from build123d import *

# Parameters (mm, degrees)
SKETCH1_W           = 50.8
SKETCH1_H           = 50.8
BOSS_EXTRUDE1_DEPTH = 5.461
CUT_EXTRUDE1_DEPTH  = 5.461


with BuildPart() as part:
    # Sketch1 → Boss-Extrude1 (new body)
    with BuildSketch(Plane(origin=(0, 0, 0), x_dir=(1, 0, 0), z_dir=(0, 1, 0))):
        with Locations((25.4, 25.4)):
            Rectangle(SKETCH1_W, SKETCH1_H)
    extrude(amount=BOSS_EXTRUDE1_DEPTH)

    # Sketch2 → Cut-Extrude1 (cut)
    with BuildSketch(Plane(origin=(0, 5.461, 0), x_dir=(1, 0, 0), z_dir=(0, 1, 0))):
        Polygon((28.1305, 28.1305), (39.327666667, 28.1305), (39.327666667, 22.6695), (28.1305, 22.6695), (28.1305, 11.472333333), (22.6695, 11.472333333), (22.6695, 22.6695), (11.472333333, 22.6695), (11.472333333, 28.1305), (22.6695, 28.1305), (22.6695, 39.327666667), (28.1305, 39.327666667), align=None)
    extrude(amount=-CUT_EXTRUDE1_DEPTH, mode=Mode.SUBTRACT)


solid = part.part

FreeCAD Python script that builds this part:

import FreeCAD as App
import Part
import Sketcher

V = App.Vector
Q = App.Units.Quantity


def add_polygon(sketch, points):
    """Adds a closed chain of lines whose ends are joined by coincident constraints."""
    first, n = sketch.GeometryCount, len(points)
    for a, b in zip(points, points[1:] + points[:1]):
        sketch.addGeometry(Part.LineSegment(App.Vector(*a, 0), App.Vector(*b, 0)), False)
    for i in range(n):
        sketch.addConstraint(Sketcher.Constraint("Coincident", first + i, 2, first + (i + 1) % n, 1))

doc = App.newDocument("Part")
body = doc.addObject("PartDesign::Body", "Body")

sketch1 = body.newObject("Sketcher::SketchObject", "Sketch")
sketch1.AttachmentSupport = (doc.getObject("XZ_Plane"), [""])
sketch1.MapMode = "FlatFace"
add_polygon(sketch1, [(0, -51), (0, 0), (51, 0), (51, -51)])
sketch1.addConstraint(Sketcher.Constraint("Vertical", 0))
sketch1.addConstraint(Sketcher.Constraint("Horizontal", 1))
sketch1.addConstraint(Sketcher.Constraint("Vertical", 2))
sketch1.addConstraint(Sketcher.Constraint("Horizontal", 3))
sketch1.addConstraint(Sketcher.Constraint("Coincident", 0, 2, -1, 1))
sketch1.addConstraint(Sketcher.Constraint("Equal", 3, 0))
sketch1.addConstraint(Sketcher.Constraint("DistanceX", 1, 1, 1, 2, Q("2 in")))
pad1 = body.newObject("PartDesign::Pad", "Pad")
pad1.Profile = sketch1
pad1.Length = Q("0.215 in")
pad1.Reversed = True

sketch2 = body.newObject("Sketcher::SketchObject", "Sketch001")
sketch2.AttachmentSupport = (doc.getObject("XZ_Plane"), [""])
sketch2.MapMode = "FlatFace"
sketch2.AttachmentOffset = App.Placement(V(0, 0, -0.215 * 25.4), App.Rotation())
add_polygon(sketch2, [(39, -28), (28, -28), (28, -39), (23, -39), (23, -28), (11, -28), (11, -23), (23, -23), (23, -11), (28, -11), (28, -23), (39, -23)])
sketch2.addConstraint(Sketcher.Constraint("Horizontal", 0))
sketch2.addConstraint(Sketcher.Constraint("Vertical", 1))
sketch2.addConstraint(Sketcher.Constraint("Horizontal", 2))
sketch2.addConstraint(Sketcher.Constraint("Vertical", 3))
sketch2.addConstraint(Sketcher.Constraint("Horizontal", 4))
sketch2.addConstraint(Sketcher.Constraint("Vertical", 5))
sketch2.addConstraint(Sketcher.Constraint("Horizontal", 6))
sketch2.addConstraint(Sketcher.Constraint("Vertical", 7))
sketch2.addConstraint(Sketcher.Constraint("Horizontal", 8))
sketch2.addConstraint(Sketcher.Constraint("Vertical", 9))
sketch2.addConstraint(Sketcher.Constraint("Horizontal", 10))
sketch2.addConstraint(Sketcher.Constraint("Vertical", 11))
sketch2.addConstraint(Sketcher.Constraint("Horizontal", 0, 2, 3, 2))
sketch2.addConstraint(Sketcher.Constraint("Horizontal", 6, 2, 9, 2))
sketch2.addConstraint(Sketcher.Constraint("Vertical", 3, 2, 6, 2))
sketch2.addConstraint(Sketcher.Constraint("Vertical", 1, 2, 8, 2))
sketch2.addConstraint(Sketcher.Constraint("Equal", 0, 4))
sketch2.addConstraint(Sketcher.Constraint("Equal", 10, 1))
sketch2.addConstraint(Sketcher.Constraint("Equal", 8, 5))
sketch2.addConstraint(Sketcher.Constraint("Equal", 3, 7))
sketch2.addConstraint(Sketcher.Constraint("DistanceX", 2, 2, 2, 1, Q("0.215 in")))
sketch2.addConstraint(Sketcher.Constraint("DistanceX", -1, 1, 0, 2, Q("1.1075 in")))
sketch2.addConstraint(Sketcher.Constraint("DistanceY", 0, 2, -1, 1, Q("1.1075 in")))
sketch2.addConstraint(Sketcher.Constraint("DistanceX", 0, 2, 0, 1, Q("11.197167 mm")))
pocket1 = body.newObject("PartDesign::Pocket", "Pocket")
pocket1.Profile = sketch2
pocket1.Length = Q("0.215 in")
pocket1.Reversed = True

doc.recompute()
